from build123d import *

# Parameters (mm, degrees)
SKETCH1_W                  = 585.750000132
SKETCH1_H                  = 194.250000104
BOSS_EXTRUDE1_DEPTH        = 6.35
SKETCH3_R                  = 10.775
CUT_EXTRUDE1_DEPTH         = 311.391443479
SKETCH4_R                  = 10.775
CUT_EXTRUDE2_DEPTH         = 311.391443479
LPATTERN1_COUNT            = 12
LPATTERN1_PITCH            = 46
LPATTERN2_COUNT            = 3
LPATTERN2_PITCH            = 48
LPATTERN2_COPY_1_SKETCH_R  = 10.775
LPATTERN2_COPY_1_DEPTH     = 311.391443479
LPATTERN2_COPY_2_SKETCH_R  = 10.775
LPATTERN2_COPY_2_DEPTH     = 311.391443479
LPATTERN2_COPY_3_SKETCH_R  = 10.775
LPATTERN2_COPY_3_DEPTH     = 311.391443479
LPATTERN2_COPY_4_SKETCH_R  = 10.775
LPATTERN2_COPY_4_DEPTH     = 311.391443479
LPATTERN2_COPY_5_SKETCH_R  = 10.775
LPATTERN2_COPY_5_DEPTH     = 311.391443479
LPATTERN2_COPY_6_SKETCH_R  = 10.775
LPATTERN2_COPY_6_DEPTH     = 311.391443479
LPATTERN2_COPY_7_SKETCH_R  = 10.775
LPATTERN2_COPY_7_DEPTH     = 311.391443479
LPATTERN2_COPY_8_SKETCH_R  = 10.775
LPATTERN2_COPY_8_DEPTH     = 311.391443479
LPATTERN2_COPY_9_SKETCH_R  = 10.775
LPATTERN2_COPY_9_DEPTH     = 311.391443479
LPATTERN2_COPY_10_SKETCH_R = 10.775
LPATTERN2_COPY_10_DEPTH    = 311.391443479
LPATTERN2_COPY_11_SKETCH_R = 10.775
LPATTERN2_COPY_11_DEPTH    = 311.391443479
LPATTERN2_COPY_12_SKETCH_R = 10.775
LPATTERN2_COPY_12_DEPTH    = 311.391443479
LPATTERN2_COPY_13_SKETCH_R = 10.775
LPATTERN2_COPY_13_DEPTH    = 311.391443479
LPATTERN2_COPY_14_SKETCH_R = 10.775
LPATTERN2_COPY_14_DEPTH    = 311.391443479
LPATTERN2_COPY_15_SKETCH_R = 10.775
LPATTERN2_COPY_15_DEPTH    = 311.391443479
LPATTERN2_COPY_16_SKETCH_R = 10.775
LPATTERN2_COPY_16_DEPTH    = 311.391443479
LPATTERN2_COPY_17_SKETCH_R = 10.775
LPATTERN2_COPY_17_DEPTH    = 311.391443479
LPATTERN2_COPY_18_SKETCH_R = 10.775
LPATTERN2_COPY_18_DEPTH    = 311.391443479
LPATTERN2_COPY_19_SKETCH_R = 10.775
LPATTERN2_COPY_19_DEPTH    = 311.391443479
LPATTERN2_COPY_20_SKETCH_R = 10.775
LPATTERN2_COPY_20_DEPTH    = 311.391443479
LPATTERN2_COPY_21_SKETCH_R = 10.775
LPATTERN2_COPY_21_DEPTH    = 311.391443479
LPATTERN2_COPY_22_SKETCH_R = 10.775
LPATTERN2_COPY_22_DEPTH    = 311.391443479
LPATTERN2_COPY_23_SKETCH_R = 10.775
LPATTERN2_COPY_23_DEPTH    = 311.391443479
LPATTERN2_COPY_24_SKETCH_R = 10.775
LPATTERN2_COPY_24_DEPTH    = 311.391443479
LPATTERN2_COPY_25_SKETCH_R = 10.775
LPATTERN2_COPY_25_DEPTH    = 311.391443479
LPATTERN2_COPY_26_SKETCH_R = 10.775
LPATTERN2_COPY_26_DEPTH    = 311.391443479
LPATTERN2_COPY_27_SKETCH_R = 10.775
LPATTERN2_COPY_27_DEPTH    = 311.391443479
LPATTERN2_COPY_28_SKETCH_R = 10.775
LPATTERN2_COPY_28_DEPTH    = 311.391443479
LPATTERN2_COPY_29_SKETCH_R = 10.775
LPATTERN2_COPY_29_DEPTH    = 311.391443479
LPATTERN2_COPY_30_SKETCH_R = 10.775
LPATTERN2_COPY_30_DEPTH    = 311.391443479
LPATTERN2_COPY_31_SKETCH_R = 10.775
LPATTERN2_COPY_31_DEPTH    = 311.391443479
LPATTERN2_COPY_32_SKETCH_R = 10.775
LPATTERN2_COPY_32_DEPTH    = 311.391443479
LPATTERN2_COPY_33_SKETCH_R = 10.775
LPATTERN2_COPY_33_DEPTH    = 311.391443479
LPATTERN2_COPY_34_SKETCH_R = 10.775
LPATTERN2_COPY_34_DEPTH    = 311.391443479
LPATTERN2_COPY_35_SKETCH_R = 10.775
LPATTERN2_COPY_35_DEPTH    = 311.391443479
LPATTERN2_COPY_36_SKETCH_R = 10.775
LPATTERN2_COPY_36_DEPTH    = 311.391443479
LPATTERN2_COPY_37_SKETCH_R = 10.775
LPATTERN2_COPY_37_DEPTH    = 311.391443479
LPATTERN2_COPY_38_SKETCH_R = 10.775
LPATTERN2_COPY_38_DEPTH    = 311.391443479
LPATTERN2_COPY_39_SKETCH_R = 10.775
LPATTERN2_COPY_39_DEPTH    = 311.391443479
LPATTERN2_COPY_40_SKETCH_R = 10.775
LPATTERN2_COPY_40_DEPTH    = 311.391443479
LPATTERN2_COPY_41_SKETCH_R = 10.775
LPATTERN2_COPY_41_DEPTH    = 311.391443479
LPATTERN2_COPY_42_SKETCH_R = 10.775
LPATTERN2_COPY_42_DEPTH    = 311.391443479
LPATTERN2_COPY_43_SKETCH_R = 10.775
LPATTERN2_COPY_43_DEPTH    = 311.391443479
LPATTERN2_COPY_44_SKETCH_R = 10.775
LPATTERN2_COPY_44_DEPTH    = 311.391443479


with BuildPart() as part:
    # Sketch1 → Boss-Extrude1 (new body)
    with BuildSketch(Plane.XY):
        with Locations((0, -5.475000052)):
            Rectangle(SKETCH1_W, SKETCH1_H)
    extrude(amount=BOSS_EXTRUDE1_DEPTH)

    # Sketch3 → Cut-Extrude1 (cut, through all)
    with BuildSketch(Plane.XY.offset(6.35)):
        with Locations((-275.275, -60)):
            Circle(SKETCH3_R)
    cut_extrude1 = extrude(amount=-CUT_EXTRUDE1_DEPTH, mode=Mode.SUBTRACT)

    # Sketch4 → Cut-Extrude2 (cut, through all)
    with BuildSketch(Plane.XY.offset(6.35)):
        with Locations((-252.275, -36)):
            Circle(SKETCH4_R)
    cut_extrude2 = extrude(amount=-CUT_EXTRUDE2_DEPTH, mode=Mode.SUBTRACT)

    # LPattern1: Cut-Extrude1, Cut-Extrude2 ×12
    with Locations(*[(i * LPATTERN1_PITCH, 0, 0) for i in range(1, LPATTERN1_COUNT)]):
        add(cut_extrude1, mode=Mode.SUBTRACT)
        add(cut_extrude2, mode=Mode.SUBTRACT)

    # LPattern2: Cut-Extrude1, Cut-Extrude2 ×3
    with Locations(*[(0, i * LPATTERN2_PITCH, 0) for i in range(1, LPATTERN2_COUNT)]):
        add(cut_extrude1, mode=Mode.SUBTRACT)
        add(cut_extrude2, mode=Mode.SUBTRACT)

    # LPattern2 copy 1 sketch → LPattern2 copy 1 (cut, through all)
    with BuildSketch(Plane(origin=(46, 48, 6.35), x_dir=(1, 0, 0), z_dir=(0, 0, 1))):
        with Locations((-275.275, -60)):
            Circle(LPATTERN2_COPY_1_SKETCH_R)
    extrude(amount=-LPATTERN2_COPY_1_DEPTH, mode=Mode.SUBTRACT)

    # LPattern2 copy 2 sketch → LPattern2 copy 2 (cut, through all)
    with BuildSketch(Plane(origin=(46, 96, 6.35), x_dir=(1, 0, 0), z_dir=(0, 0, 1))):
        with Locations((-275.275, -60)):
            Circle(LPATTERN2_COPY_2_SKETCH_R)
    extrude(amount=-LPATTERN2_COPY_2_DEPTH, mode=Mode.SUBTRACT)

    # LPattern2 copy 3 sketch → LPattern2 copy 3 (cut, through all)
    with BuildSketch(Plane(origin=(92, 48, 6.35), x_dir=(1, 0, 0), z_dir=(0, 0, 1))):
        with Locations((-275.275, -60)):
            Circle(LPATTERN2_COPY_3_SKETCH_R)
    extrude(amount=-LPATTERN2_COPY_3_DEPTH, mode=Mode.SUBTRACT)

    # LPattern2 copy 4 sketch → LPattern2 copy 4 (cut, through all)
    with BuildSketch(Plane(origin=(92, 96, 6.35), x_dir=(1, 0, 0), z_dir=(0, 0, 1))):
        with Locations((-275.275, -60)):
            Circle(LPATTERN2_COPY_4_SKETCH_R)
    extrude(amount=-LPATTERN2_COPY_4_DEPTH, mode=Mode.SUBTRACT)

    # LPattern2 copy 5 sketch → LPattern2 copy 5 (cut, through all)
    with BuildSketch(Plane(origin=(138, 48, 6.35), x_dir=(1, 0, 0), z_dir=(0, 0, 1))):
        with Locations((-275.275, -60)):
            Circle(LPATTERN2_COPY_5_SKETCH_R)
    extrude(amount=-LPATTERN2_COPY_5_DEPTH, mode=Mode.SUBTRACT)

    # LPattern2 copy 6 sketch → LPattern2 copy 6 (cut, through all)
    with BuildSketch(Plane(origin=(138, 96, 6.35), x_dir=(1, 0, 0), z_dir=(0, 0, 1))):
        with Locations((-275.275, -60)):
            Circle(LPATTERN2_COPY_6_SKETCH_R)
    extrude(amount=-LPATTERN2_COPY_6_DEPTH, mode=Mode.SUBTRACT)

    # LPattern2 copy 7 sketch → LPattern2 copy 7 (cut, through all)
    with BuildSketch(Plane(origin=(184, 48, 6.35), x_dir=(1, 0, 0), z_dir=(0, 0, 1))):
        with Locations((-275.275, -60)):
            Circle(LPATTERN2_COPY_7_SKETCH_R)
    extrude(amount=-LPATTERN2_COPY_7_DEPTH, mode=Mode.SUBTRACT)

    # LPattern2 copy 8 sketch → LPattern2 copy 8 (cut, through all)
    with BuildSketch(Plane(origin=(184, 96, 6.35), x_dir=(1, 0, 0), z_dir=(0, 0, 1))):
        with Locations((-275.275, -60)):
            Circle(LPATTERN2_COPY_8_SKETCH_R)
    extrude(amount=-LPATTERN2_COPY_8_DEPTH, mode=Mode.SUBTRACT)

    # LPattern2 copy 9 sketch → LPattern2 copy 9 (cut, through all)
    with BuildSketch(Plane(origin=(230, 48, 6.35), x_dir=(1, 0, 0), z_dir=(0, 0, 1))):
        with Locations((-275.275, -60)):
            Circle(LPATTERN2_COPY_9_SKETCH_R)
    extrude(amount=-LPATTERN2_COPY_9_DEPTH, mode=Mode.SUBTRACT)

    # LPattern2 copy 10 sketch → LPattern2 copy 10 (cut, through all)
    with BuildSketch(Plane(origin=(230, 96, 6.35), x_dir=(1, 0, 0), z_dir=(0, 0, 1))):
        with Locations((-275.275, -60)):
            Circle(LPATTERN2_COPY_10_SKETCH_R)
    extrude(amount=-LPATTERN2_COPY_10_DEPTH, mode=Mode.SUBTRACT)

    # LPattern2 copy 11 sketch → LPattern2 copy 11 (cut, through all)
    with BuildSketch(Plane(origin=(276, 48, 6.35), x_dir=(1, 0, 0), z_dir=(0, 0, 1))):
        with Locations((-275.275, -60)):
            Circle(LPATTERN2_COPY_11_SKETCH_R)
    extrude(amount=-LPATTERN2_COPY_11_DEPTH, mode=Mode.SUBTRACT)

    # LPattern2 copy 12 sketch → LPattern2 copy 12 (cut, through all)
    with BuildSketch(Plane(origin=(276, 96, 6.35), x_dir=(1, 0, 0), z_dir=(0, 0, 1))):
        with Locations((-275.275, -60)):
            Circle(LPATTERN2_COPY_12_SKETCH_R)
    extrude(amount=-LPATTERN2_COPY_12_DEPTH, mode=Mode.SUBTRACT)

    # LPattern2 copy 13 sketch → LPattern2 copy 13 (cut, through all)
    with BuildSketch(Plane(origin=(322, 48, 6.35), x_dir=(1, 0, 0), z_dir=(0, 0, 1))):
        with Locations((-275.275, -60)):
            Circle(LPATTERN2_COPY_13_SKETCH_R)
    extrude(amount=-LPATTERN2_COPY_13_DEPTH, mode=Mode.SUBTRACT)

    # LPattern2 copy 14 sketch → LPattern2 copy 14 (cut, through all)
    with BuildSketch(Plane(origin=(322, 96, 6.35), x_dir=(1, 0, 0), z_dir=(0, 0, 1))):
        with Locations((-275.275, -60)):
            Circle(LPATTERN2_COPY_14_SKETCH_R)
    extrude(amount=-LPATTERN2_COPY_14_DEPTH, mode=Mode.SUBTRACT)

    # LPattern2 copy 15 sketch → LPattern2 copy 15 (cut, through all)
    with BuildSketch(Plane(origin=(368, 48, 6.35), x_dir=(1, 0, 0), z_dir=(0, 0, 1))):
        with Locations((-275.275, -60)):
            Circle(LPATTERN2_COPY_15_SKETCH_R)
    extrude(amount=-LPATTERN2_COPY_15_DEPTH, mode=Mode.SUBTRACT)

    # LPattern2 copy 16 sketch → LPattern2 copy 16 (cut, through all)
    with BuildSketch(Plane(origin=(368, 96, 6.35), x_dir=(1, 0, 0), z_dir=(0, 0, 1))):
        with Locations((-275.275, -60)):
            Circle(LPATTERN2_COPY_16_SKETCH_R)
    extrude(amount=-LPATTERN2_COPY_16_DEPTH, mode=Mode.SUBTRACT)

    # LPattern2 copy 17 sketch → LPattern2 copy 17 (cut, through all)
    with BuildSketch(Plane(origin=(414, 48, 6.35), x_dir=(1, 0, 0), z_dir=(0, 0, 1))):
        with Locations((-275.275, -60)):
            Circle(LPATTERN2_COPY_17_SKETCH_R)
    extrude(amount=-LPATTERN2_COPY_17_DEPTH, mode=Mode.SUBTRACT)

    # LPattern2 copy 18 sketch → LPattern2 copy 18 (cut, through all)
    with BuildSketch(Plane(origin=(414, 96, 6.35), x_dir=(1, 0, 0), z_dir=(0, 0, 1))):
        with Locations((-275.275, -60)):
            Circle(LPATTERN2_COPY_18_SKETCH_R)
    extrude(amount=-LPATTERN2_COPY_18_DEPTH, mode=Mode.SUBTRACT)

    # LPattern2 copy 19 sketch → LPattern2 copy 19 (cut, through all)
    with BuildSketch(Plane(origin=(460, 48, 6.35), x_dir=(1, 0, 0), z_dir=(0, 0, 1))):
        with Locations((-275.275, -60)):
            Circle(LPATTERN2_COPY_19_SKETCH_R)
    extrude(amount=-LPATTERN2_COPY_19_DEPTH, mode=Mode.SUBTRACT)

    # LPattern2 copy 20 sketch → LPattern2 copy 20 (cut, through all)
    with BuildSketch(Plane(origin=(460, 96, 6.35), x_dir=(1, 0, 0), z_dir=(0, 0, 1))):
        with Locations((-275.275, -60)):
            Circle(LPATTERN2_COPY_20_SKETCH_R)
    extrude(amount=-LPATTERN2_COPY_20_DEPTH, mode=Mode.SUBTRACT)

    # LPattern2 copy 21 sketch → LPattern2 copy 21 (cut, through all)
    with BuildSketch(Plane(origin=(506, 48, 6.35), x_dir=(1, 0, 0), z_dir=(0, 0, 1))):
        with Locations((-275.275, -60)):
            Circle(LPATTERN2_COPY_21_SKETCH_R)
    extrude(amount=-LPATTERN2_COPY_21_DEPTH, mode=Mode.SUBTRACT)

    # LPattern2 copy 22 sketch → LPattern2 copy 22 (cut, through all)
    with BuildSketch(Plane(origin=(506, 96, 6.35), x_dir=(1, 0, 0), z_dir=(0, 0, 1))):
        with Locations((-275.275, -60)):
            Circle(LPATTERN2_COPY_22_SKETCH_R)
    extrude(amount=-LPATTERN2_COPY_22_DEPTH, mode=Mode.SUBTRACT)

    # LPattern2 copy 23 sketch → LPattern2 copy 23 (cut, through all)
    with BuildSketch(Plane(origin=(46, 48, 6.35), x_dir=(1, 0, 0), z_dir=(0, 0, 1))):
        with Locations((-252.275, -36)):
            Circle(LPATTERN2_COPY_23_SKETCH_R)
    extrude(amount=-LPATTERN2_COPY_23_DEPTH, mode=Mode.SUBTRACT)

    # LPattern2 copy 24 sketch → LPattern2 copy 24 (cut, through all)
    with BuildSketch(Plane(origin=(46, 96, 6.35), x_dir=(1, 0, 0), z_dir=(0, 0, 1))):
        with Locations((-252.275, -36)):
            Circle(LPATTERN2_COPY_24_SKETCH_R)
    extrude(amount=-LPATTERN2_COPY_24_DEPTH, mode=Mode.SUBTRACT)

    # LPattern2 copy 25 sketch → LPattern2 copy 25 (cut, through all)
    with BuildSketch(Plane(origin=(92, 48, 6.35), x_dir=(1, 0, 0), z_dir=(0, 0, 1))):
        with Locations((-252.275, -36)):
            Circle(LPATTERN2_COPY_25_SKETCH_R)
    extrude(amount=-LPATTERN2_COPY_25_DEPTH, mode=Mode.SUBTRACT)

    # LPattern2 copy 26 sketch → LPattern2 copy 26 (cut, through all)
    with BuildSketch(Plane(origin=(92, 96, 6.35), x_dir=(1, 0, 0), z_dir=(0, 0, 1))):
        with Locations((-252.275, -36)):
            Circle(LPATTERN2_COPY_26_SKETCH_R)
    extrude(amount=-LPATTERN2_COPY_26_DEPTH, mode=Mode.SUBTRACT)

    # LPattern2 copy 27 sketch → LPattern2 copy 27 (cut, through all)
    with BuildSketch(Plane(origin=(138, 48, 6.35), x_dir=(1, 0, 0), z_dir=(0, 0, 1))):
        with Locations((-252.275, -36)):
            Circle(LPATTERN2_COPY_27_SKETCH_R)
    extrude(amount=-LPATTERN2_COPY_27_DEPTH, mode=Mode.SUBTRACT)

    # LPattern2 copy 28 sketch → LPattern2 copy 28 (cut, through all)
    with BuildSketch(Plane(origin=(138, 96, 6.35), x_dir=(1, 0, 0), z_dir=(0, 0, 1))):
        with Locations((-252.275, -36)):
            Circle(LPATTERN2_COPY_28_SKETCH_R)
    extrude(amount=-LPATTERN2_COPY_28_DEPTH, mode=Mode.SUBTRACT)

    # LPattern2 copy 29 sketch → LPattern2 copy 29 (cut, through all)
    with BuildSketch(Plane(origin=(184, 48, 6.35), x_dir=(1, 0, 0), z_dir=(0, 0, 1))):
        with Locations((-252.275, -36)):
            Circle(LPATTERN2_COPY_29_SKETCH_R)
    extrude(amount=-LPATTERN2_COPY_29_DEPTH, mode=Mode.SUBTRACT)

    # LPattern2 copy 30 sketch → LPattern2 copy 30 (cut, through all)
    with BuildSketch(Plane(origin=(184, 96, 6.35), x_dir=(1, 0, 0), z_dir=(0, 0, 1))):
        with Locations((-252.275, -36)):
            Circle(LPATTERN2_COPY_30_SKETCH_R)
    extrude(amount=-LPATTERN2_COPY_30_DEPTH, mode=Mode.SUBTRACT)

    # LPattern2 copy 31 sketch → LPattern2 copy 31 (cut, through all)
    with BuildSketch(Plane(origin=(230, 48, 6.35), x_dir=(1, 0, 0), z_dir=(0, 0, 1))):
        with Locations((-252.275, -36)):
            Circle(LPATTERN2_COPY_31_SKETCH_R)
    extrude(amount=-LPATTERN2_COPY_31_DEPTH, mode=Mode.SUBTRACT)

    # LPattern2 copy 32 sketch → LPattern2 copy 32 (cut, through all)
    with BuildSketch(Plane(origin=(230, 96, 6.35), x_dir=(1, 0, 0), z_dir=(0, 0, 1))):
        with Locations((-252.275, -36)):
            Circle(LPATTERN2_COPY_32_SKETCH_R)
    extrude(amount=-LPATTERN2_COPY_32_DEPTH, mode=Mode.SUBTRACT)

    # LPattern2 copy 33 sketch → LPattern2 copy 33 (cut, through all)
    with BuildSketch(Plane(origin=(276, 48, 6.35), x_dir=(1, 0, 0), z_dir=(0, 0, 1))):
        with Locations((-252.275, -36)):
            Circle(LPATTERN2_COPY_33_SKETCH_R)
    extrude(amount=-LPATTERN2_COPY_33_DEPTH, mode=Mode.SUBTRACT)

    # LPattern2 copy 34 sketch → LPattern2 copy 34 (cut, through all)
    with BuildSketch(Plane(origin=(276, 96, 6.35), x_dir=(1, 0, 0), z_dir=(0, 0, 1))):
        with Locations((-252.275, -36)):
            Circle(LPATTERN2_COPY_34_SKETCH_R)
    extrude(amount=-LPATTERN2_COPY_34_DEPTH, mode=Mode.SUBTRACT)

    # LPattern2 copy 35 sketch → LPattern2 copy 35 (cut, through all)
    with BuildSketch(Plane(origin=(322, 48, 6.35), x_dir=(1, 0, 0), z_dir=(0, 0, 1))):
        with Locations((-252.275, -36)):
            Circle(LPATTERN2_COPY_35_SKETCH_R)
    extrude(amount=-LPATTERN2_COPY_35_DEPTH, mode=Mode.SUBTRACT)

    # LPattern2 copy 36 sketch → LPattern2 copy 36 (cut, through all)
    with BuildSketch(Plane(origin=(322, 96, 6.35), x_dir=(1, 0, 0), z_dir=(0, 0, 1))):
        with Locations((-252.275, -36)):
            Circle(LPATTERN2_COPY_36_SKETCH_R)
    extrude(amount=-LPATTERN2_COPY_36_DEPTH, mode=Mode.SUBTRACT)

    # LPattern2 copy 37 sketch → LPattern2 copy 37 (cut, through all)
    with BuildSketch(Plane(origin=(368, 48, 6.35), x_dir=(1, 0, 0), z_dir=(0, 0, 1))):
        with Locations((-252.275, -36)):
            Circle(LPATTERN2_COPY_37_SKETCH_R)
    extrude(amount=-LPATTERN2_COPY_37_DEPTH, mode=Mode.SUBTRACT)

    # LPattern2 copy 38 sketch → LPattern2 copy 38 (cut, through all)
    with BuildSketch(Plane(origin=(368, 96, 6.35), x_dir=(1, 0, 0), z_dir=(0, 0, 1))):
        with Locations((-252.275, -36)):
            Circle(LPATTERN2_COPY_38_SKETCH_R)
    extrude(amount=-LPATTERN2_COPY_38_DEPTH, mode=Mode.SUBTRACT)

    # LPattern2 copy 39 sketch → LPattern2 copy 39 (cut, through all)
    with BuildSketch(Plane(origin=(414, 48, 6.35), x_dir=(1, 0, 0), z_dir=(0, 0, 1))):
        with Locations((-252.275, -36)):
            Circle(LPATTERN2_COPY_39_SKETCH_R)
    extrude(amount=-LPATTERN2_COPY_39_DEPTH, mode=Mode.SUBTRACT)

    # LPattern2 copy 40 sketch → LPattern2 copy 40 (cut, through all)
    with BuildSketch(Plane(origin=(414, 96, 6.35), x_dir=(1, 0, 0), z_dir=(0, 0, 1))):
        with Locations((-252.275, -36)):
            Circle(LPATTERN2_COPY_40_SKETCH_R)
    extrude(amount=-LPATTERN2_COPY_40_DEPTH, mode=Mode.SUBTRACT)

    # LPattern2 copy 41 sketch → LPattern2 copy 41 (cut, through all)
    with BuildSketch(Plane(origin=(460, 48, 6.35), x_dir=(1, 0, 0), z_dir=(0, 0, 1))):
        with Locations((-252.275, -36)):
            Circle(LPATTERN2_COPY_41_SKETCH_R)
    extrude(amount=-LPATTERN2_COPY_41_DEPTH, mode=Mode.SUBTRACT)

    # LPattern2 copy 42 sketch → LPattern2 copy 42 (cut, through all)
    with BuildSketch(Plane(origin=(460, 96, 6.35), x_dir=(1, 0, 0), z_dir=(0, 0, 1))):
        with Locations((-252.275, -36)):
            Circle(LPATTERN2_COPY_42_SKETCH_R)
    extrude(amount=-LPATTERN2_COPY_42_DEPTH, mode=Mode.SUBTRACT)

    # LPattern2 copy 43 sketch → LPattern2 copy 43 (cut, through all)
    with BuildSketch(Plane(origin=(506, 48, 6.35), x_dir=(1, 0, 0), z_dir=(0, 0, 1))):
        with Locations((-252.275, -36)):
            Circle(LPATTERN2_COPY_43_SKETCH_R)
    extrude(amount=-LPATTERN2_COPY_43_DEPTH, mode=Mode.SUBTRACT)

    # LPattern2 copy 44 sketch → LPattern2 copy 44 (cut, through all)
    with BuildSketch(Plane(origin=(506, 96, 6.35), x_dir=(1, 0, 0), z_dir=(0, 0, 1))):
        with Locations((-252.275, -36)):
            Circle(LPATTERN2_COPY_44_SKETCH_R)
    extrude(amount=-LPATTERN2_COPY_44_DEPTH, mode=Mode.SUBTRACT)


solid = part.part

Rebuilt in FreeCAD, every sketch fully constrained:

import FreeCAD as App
import Part
import Sketcher

V = App.Vector
Q = App.Units.Quantity


def add_polygon(sketch, points):
    """Adds a closed chain of lines whose ends are joined by coincident constraints."""
    first, n = sketch.GeometryCount, len(points)
    for a, b in zip(points, points[1:] + points[:1]):
        sketch.addGeometry(Part.LineSegment(App.Vector(*a, 0), App.Vector(*b, 0)), False)
    for i in range(n):
        sketch.addConstraint(Sketcher.Constraint("Coincident", first + i, 2, first + (i + 1) % n, 1))

doc = App.newDocument("Part")
body = doc.addObject("PartDesign::Body", "Body")

# Sketch on XY plane
sketch1 = body.newObject("Sketcher::SketchObject", "Sketch")
sketch1.AttachmentSupport = (doc.getObject("XY_Plane"), [""])
sketch1.MapMode = "FlatFace"
add_polygon(sketch1, [(-293, 92), (-293, -103), (293, -103), (293, 92)])  # lines 0-3
sketch1.addConstraint([
    Sketcher.Constraint("Vertical", 0),
    Sketcher.Constraint("Horizontal", 1),
    Sketcher.Constraint("Vertical", 2),
    Sketcher.Constraint("Horizontal", 3),
    Sketcher.Constraint("DistanceX", 1, 1, 1, 2, Q("585.75 mm")),
    Sketcher.Constraint("DistanceY", 0, 2, 0, 1, Q("194.25 mm")),
    Sketcher.Constraint("DistanceX", 0, 2, -1, 1, Q("292.875 mm")),
    Sketcher.Constraint("DistanceY", 0, 2, -1, 1, Q("102.6 mm")),
])
pad1 = body.newObject("PartDesign::Pad", "Pad")
pad1.Profile = sketch1
pad1.Length = Q("0.25 in")

# Sketch on XY plane
sketch2 = body.newObject("Sketcher::SketchObject", "Sketch001")
sketch2.AttachmentSupport = (doc.getObject("XY_Plane"), [""])
sketch2.MapMode = "FlatFace"
sketch2.AttachmentOffset = App.Placement(V(0, 0, 0.25 * 25.4), App.Rotation())
sketch2.addGeometry(Part.Circle(V(-275, -60, 0), V(0, 0, 1), 11), False)
sketch2.addConstraint([
    Sketcher.Constraint("Diameter", 0, Q("21.55 mm")),
    Sketcher.Constraint("DistanceX", 0, 3, -1, 1, Q("275.275 mm")),
    Sketcher.Constraint("DistanceY", 0, 3, -1, 1, Q("60 mm")),
])
pocket1 = body.newObject("PartDesign::Pocket", "Pocket")
pocket1.Profile = sketch2
pocket1.Type = "ThroughAll"

# Sketch on XY plane
sketch3 = body.newObject("Sketcher::SketchObject", "Sketch002")
sketch3.AttachmentSupport = (doc.getObject("XY_Plane"), [""])
sketch3.MapMode = "FlatFace"
sketch3.AttachmentOffset = App.Placement(V(0, 0, 0.25 * 25.4), App.Rotation())
sketch3.addGeometry(Part.Circle(V(-252, -36, 0), V(0, 0, 1), 11), False)
sketch3.addConstraint([
    Sketcher.Constraint("Diameter", 0, Q("21.55 mm")),
    Sketcher.Constraint("DistanceX", 0, 3, -1, 1, Q("252.275 mm")),
    Sketcher.Constraint("DistanceY", 0, 3, -1, 1, Q("36 mm")),
])
pocket2 = body.newObject("PartDesign::Pocket", "Pocket001")
pocket2.Profile = sketch3
pocket2.Type = "ThroughAll"
doc.recompute()

linearpattern = body.newObject("PartDesign::LinearPattern", "LinearPattern")
linearpattern.Originals = [pocket1, pocket2]
linearpattern.Direction = (doc.getObject("X_Axis"), [""])
linearpattern.Mode = "offset"
linearpattern.Offset = 46
linearpattern.Occurrences = 12
body.Tip = linearpattern
doc.recompute()

linearpattern2 = body.newObject("PartDesign::LinearPattern", "LinearPattern001")
linearpattern2.Originals = [pocket1, pocket2]
linearpattern2.Direction = (doc.getObject("Y_Axis"), [""])
linearpattern2.Mode = "offset"
linearpattern2.Offset = 48
linearpattern2.Occurrences = 3
body.Tip = linearpattern2

# Sketch on XY plane
sketch4 = body.newObject("Sketcher::SketchObject", "Sketch003")
sketch4.AttachmentSupport = (doc.getObject("XY_Plane"), [""])
sketch4.MapMode = "FlatFace"
sketch4.AttachmentOffset = App.Placement(V(0, 0, 0.25 * 25.4), App.Rotation())
sketch4.addGeometry(Part.Circle(V(-229, -12, 0), V(0, 0, 1), 11), False)
sketch4.addConstraint([
    Sketcher.Constraint("Diameter", 0, Q("21.55 mm")),
    Sketcher.Constraint("DistanceX", 0, 3, -1, 1, Q("229.275 mm")),
    Sketcher.Constraint("DistanceY", 0, 3, -1, 1, Q("12 mm")),
])
pocket3 = body.newObject("PartDesign::Pocket", "Pocket002")
pocket3.Profile = sketch4
pocket3.Type = "ThroughAll"

# Sketch on XY plane
sketch5 = body.newObject("Sketcher::SketchObject", "Sketch004")
sketch5.AttachmentSupport = (doc.getObject("XY_Plane"), [""])
sketch5.MapMode = "FlatFace"
sketch5.AttachmentOffset = App.Placement(V(0, 0, 0.25 * 25.4), App.Rotation())
sketch5.addGeometry(Part.Circle(V(-229, 36, 0), V(0, 0, 1), 11), False)
sketch5.addConstraint([
    Sketcher.Constraint("Diameter", 0, Q("21.55 mm")),
    Sketcher.Constraint("DistanceX", 0, 3, -1, 1, Q("229.275 mm")),
    Sketcher.Constraint("DistanceY", -1, 1, 0, 3, Q("36 mm")),
])
pocket4 = body.newObject("PartDesign::Pocket", "Pocket003")
pocket4.Profile = sketch5
pocket4.Type = "ThroughAll"

# Sketch on XY plane
sketch6 = body.newObject("Sketcher::SketchObject", "Sketch005")
sketch6.AttachmentSupport = (doc.getObject("XY_Plane"), [""])
sketch6.MapMode = "FlatFace"
sketch6.AttachmentOffset = App.Placement(V(0, 0, 0.25 * 25.4), App.Rotation())
sketch6.addGeometry(Part.Circle(V(-183, -12, 0), V(0, 0, 1), 11), False)
sketch6.addConstraint([
    Sketcher.Constraint("Diameter", 0, Q("21.55 mm")),
    Sketcher.Constraint("DistanceX", 0, 3, -1, 1, Q("183.275 mm")),
    Sketcher.Constraint("DistanceY", 0, 3, -1, 1, Q("12 mm")),
])
pocket5 = body.newObject("PartDesign::Pocket", "Pocket004")
pocket5.Profile = sketch6
pocket5.Type = "ThroughAll"

# Sketch on XY plane
sketch7 = body.newObject("Sketcher::SketchObject", "Sketch006")
sketch7.AttachmentSupport = (doc.getObject("XY_Plane"), [""])
sketch7.MapMode = "FlatFace"
sketch7.AttachmentOffset = App.Placement(V(0, 0, 0.25 * 25.4), App.Rotation())
sketch7.addGeometry(Part.Circle(V(-183, 36, 0), V(0, 0, 1), 11), False)
sketch7.addConstraint([
    Sketcher.Constraint("Diameter", 0, Q("21.55 mm")),
    Sketcher.Constraint("DistanceX", 0, 3, -1, 1, Q("183.275 mm")),
    Sketcher.Constraint("DistanceY", -1, 1, 0, 3, Q("36 mm")),
])
pocket6 = body.newObject("PartDesign::Pocket", "Pocket005")
pocket6.Profile = sketch7
pocket6.Type = "ThroughAll"

# Sketch on XY plane
sketch8 = body.newObject("Sketcher::SketchObject", "Sketch007")
sketch8.AttachmentSupport = (doc.getObject("XY_Plane"), [""])
sketch8.MapMode = "FlatFace"
sketch8.AttachmentOffset = App.Placement(V(0, 0, 0.25 * 25.4), App.Rotation())
sketch8.addGeometry(Part.Circle(V(-137, -12, 0), V(0, 0, 1), 11), False)
sketch8.addConstraint([
    Sketcher.Constraint("Diameter", 0, Q("21.55 mm")),
    Sketcher.Constraint("DistanceX", 0, 3, -1, 1, Q("137.275 mm")),
    Sketcher.Constraint("DistanceY", 0, 3, -1, 1, Q("12 mm")),
])
pocket7 = body.newObject("PartDesign::Pocket", "Pocket006")
pocket7.Profile = sketch8
pocket7.Type = "ThroughAll"

# Sketch on XY plane
sketch9 = body.newObject("Sketcher::SketchObject", "Sketch008")
sketch9.AttachmentSupport = (doc.getObject("XY_Plane"), [""])
sketch9.MapMode = "FlatFace"
sketch9.AttachmentOffset = App.Placement(V(0, 0, 0.25 * 25.4), App.Rotation())
sketch9.addGeometry(Part.Circle(V(-137, 36, 0), V(0, 0, 1), 11), False)
sketch9.addConstraint([
    Sketcher.Constraint("Diameter", 0, Q("21.55 mm")),
    Sketcher.Constraint("DistanceX", 0, 3, -1, 1, Q("137.275 mm")),
    Sketcher.Constraint("DistanceY", -1, 1, 0, 3, Q("36 mm")),
])
pocket8 = body.newObject("PartDesign::Pocket", "Pocket007")
pocket8.Profile = sketch9
pocket8.Type = "ThroughAll"

# Sketch on XY plane
sketch10 = body.newObject("Sketcher::SketchObject", "Sketch009")
sketch10.AttachmentSupport = (doc.getObject("XY_Plane"), [""])
sketch10.MapMode = "FlatFace"
sketch10.AttachmentOffset = App.Placement(V(0, 0, 0.25 * 25.4), App.Rotation())
sketch10.addGeometry(Part.Circle(V(-91, -12, 0), V(0, 0, 1), 11), False)
sketch10.addConstraint([
    Sketcher.Constraint("Diameter", 0, Q("21.55 mm")),
    Sketcher.Constraint("DistanceX", 0, 3, -1, 1, Q("91.275 mm")),
    Sketcher.Constraint("DistanceY", 0, 3, -1, 1, Q("12 mm")),
])
pocket9 = body.newObject("PartDesign::Pocket", "Pocket008")
pocket9.Profile = sketch10
pocket9.Type = "ThroughAll"

# Sketch on XY plane
sketch11 = body.newObject("Sketcher::SketchObject", "Sketch010")
sketch11.AttachmentSupport = (doc.getObject("XY_Plane"), [""])
sketch11.MapMode = "FlatFace"
sketch11.AttachmentOffset = App.Placement(V(0, 0, 0.25 * 25.4), App.Rotation())
sketch11.addGeometry(Part.Circle(V(-91, 36, 0), V(0, 0, 1), 11), False)
sketch11.addConstraint([
    Sketcher.Constraint("Diameter", 0, Q("21.55 mm")),
    Sketcher.Constraint("DistanceX", 0, 3, -1, 1, Q("91.275 mm")),
    Sketcher.Constraint("DistanceY", -1, 1, 0, 3, Q("36 mm")),
])
pocket10 = body.newObject("PartDesign::Pocket", "Pocket009")
pocket10.Profile = sketch11
pocket10.Type = "ThroughAll"

# Sketch on XY plane
sketch12 = body.newObject("Sketcher::SketchObject", "Sketch011")
sketch12.AttachmentSupport = (doc.getObject("XY_Plane"), [""])
sketch12.MapMode = "FlatFace"
sketch12.AttachmentOffset = App.Placement(V(0, 0, 0.25 * 25.4), App.Rotation())
sketch12.addGeometry(Part.Circle(V(-45, -12, 0), V(0, 0, 1), 11), False)
sketch12.addConstraint([
    Sketcher.Constraint("Diameter", 0, Q("21.55 mm")),
    Sketcher.Constraint("DistanceX", 0, 3, -1, 1, Q("45.275 mm")),
    Sketcher.Constraint("DistanceY", 0, 3, -1, 1, Q("12 mm")),
])
pocket11 = body.newObject("PartDesign::Pocket", "Pocket010")
pocket11.Profile = sketch12
pocket11.Type = "ThroughAll"

# Sketch on XY plane
sketch13 = body.newObject("Sketcher::SketchObject", "Sketch012")
sketch13.AttachmentSupport = (doc.getObject("XY_Plane"), [""])
sketch13.MapMode = "FlatFace"
sketch13.AttachmentOffset = App.Placement(V(0, 0, 0.25 * 25.4), App.Rotation())
sketch13.addGeometry(Part.Circle(V(-45, 36, 0), V(0, 0, 1), 11), False)
sketch13.addConstraint([
    Sketcher.Constraint("Diameter", 0, Q("21.55 mm")),
    Sketcher.Constraint("DistanceX", 0, 3, -1, 1, Q("45.275 mm")),
    Sketcher.Constraint("DistanceY", -1, 1, 0, 3, Q("36 mm")),
])
pocket12 = body.newObject("PartDesign::Pocket", "Pocket011")
pocket12.Profile = sketch13
pocket12.Type = "ThroughAll"

# Sketch on XY plane
sketch14 = body.newObject("Sketcher::SketchObject", "Sketch013")
sketch14.AttachmentSupport = (doc.getObject("XY_Plane"), [""])
sketch14.MapMode = "FlatFace"
sketch14.AttachmentOffset = App.Placement(V(0, 0, 0.25 * 25.4), App.Rotation())
sketch14.addGeometry(Part.Circle(V(1, -12, 0), V(0, 0, 1), 11), False)
sketch14.addConstraint([
    Sketcher.Constraint("Diameter", 0, Q("21.55 mm")),
    Sketcher.Constraint("DistanceX", -1, 1, 0, 3, Q("0.725 mm")),
    Sketcher.Constraint("DistanceY", 0, 3, -1, 1, Q("12 mm")),
])
pocket13 = body.newObject("PartDesign::Pocket", "Pocket012")
pocket13.Profile = sketch14
pocket13.Type = "ThroughAll"

# Sketch on XY plane
sketch15 = body.newObject("Sketcher::SketchObject", "Sketch014")
sketch15.AttachmentSupport = (doc.getObject("XY_Plane"), [""])
sketch15.MapMode = "FlatFace"
sketch15.AttachmentOffset = App.Placement(V(0, 0, 0.25 * 25.4), App.Rotation())
sketch15.addGeometry(Part.Circle(V(1, 36, 0), V(0, 0, 1), 11), False)
sketch15.addConstraint([
    Sketcher.Constraint("Diameter", 0, Q("21.55 mm")),
    Sketcher.Constraint("DistanceX", -1, 1, 0, 3, Q("0.725 mm")),
    Sketcher.Constraint("DistanceY", -1, 1, 0, 3, Q("36 mm")),
])
pocket14 = body.newObject("PartDesign::Pocket", "Pocket013")
pocket14.Profile = sketch15
pocket14.Type = "ThroughAll"

# Sketch on XY plane
sketch16 = body.newObject("Sketcher::SketchObject", "Sketch015")
sketch16.AttachmentSupport = (doc.getObject("XY_Plane"), [""])
sketch16.MapMode = "FlatFace"
sketch16.AttachmentOffset = App.Placement(V(0, 0, 0.25 * 25.4), App.Rotation())
sketch16.addGeometry(Part.Circle(V(47, -12, 0), V(0, 0, 1), 11), False)
sketch16.addConstraint([
    Sketcher.Constraint("Diameter", 0, Q("21.55 mm")),
    Sketcher.Constraint("DistanceX", -1, 1, 0, 3, Q("46.725 mm")),
    Sketcher.Constraint("DistanceY", 0, 3, -1, 1, Q("12 mm")),
])
pocket15 = body.newObject("PartDesign::Pocket", "Pocket014")
pocket15.Profile = sketch16
pocket15.Type = "ThroughAll"

# Sketch on XY plane
sketch17 = body.newObject("Sketcher::SketchObject", "Sketch016")
sketch17.AttachmentSupport = (doc.getObject("XY_Plane"), [""])
sketch17.MapMode = "FlatFace"
sketch17.AttachmentOffset = App.Placement(V(0, 0, 0.25 * 25.4), App.Rotation())
sketch17.addGeometry(Part.Circle(V(47, 36, 0), V(0, 0, 1), 11), False)
sketch17.addConstraint([
    Sketcher.Constraint("Diameter", 0, Q("21.55 mm")),
    Sketcher.Constraint("DistanceX", -1, 1, 0, 3, Q("46.725 mm")),
    Sketcher.Constraint("DistanceY", -1, 1, 0, 3, Q("36 mm")),
])
pocket16 = body.newObject("PartDesign::Pocket", "Pocket015")
pocket16.Profile = sketch17
pocket16.Type = "ThroughAll"

# Sketch on XY plane
sketch18 = body.newObject("Sketcher::SketchObject", "Sketch017")
sketch18.AttachmentSupport = (doc.getObject("XY_Plane"), [""])
sketch18.MapMode = "FlatFace"
sketch18.AttachmentOffset = App.Placement(V(0, 0, 0.25 * 25.4), App.Rotation())
sketch18.addGeometry(Part.Circle(V(93, -12, 0), V(0, 0, 1), 11), False)
sketch18.addConstraint([
    Sketcher.Constraint("Diameter", 0, Q("21.55 mm")),
    Sketcher.Constraint("DistanceX", -1, 1, 0, 3, Q("92.725 mm")),
    Sketcher.Constraint("DistanceY", 0, 3, -1, 1, Q("12 mm")),
])
pocket17 = body.newObject("PartDesign::Pocket", "Pocket016")
pocket17.Profile = sketch18
pocket17.Type = "ThroughAll"

# Sketch on XY plane
sketch19 = body.newObject("Sketcher::SketchObject", "Sketch018")
sketch19.AttachmentSupport = (doc.getObject("XY_Plane"), [""])
sketch19.MapMode = "FlatFace"
sketch19.AttachmentOffset = App.Placement(V(0, 0, 0.25 * 25.4), App.Rotation())
sketch19.addGeometry(Part.Circle(V(93, 36, 0), V(0, 0, 1), 11), False)
sketch19.addConstraint([
    Sketcher.Constraint("Diameter", 0, Q("21.55 mm")),
    Sketcher.Constraint("DistanceX", -1, 1, 0, 3, Q("92.725 mm")),
    Sketcher.Constraint("DistanceY", -1, 1, 0, 3, Q("36 mm")),
])
pocket18 = body.newObject("PartDesign::Pocket", "Pocket017")
pocket18.Profile = sketch19
pocket18.Type = "ThroughAll"

# Sketch on XY plane
sketch20 = body.newObject("Sketcher::SketchObject", "Sketch019")
sketch20.AttachmentSupport = (doc.getObject("XY_Plane"), [""])
sketch20.MapMode = "FlatFace"
sketch20.AttachmentOffset = App.Placement(V(0, 0, 0.25 * 25.4), App.Rotation())
sketch20.addGeometry(Part.Circle(V(139, -12, 0), V(0, 0, 1), 11), False)
sketch20.addConstraint([
    Sketcher.Constraint("Diameter", 0, Q("21.55 mm")),
    Sketcher.Constraint("DistanceX", -1, 1, 0, 3, Q("138.725 mm")),
    Sketcher.Constraint("DistanceY", 0, 3, -1, 1, Q("12 mm")),
])
pocket19 = body.newObject("PartDesign::Pocket", "Pocket018")
pocket19.Profile = sketch20
pocket19.Type = "ThroughAll"

# Sketch on XY plane
sketch21 = body.newObject("Sketcher::SketchObject", "Sketch020")
sketch21.AttachmentSupport = (doc.getObject("XY_Plane"), [""])
sketch21.MapMode = "FlatFace"
sketch21.AttachmentOffset = App.Placement(V(0, 0, 0.25 * 25.4), App.Rotation())
sketch21.addGeometry(Part.Circle(V(139, 36, 0), V(0, 0, 1), 11), False)
sketch21.addConstraint([
    Sketcher.Constraint("Diameter", 0, Q("21.55 mm")),
    Sketcher.Constraint("DistanceX", -1, 1, 0, 3, Q("138.725 mm")),
    Sketcher.Constraint("DistanceY", -1, 1, 0, 3, Q("36 mm")),
])
pocket20 = body.newObject("PartDesign::Pocket", "Pocket019")
pocket20.Profile = sketch21
pocket20.Type = "ThroughAll"

# Sketch on XY plane
sketch22 = body.newObject("Sketcher::SketchObject", "Sketch021")
sketch22.AttachmentSupport = (doc.getObject("XY_Plane"), [""])
sketch22.MapMode = "FlatFace"
sketch22.AttachmentOffset = App.Placement(V(0, 0, 0.25 * 25.4), App.Rotation())
sketch22.addGeometry(Part.Circle(V(185, -12, 0), V(0, 0, 1), 11), False)
sketch22.addConstraint([
    Sketcher.Constraint("Diameter", 0, Q("21.55 mm")),
    Sketcher.Constraint("DistanceX", -1, 1, 0, 3, Q("184.725 mm")),
    Sketcher.Constraint("DistanceY", 0, 3, -1, 1, Q("12 mm")),
])
pocket21 = body.newObject("PartDesign::Pocket", "Pocket020")
pocket21.Profile = sketch22
pocket21.Type = "ThroughAll"

# Sketch on XY plane
sketch23 = body.newObject("Sketcher::SketchObject", "Sketch022")
sketch23.AttachmentSupport = (doc.getObject("XY_Plane"), [""])
sketch23.MapMode = "FlatFace"
sketch23.AttachmentOffset = App.Placement(V(0, 0, 0.25 * 25.4), App.Rotation())
sketch23.addGeometry(Part.Circle(V(185, 36, 0), V(0, 0, 1), 11), False)
sketch23.addConstraint([
    Sketcher.Constraint("Diameter", 0, Q("21.55 mm")),
    Sketcher.Constraint("DistanceX", -1, 1, 0, 3, Q("184.725 mm")),
    Sketcher.Constraint("DistanceY", -1, 1, 0, 3, Q("36 mm")),
])
pocket22 = body.newObject("PartDesign::Pocket", "Pocket021")
pocket22.Profile = sketch23
pocket22.Type = "ThroughAll"

# Sketch on XY plane
sketch24 = body.newObject("Sketcher::SketchObject", "Sketch023")
sketch24.AttachmentSupport = (doc.getObject("XY_Plane"), [""])
sketch24.MapMode = "FlatFace"
sketch24.AttachmentOffset = App.Placement(V(0, 0, 0.25 * 25.4), App.Rotation())
sketch24.addGeometry(Part.Circle(V(231, -12, 0), V(0, 0, 1), 11), False)
sketch24.addConstraint([
    Sketcher.Constraint("Diameter", 0, Q("21.55 mm")),
    Sketcher.Constraint("DistanceX", -1, 1, 0, 3, Q("230.725 mm")),
    Sketcher.Constraint("DistanceY", 0, 3, -1, 1, Q("12 mm")),
])
pocket23 = body.newObject("PartDesign::Pocket", "Pocket022")
pocket23.Profile = sketch24
pocket23.Type = "ThroughAll"

# Sketch on XY plane
sketch25 = body.newObject("Sketcher::SketchObject", "Sketch024")
sketch25.AttachmentSupport = (doc.getObject("XY_Plane"), [""])
sketch25.MapMode = "FlatFace"
sketch25.AttachmentOffset = App.Placement(V(0, 0, 0.25 * 25.4), App.Rotation())
sketch25.addGeometry(Part.Circle(V(231, 36, 0), V(0, 0, 1), 11), False)
sketch25.addConstraint([
    Sketcher.Constraint("Diameter", 0, Q("21.55 mm")),
    Sketcher.Constraint("DistanceX", -1, 1, 0, 3, Q("230.725 mm")),
    Sketcher.Constraint("DistanceY", -1, 1, 0, 3, Q("36 mm")),
])
pocket24 = body.newObject("PartDesign::Pocket", "Pocket023")
pocket24.Profile = sketch25
pocket24.Type = "ThroughAll"

# Sketch on XY plane
sketch26 = body.newObject("Sketcher::SketchObject", "Sketch025")
sketch26.AttachmentSupport = (doc.getObject("XY_Plane"), [""])
sketch26.MapMode = "FlatFace"
sketch26.AttachmentOffset = App.Placement(V(0, 0, 0.25 * 25.4), App.Rotation())
sketch26.addGeometry(Part.Circle(V(-206, 12, 0), V(0, 0, 1), 11), False)
sketch26.addConstraint([
    Sketcher.Constraint("Diameter", 0, Q("21.55 mm")),
    Sketcher.Constraint("DistanceX", 0, 3, -1, 1, Q("206.275 mm")),
    Sketcher.Constraint("DistanceY", -1, 1, 0, 3, Q("12 mm")),
])
pocket25 = body.newObject("PartDesign::Pocket", "Pocket024")
pocket25.Profile = sketch26
pocket25.Type = "ThroughAll"

# Sketch on XY plane
sketch27 = body.newObject("Sketcher::SketchObject", "Sketch026")
sketch27.AttachmentSupport = (doc.getObject("XY_Plane"), [""])
sketch27.MapMode = "FlatFace"
sketch27.AttachmentOffset = App.Placement(V(0, 0, 0.25 * 25.4), App.Rotation())
sketch27.addGeometry(Part.Circle(V(-206, 60, 0), V(0, 0, 1), 11), False)
sketch27.addConstraint([
    Sketcher.Constraint("Diameter", 0, Q("21.55 mm")),
    Sketcher.Constraint("DistanceX", 0, 3, -1, 1, Q("206.275 mm")),
    Sketcher.Constraint("DistanceY", -1, 1, 0, 3, Q("60 mm")),
])
pocket26 = body.newObject("PartDesign::Pocket", "Pocket025")
pocket26.Profile = sketch27
pocket26.Type = "ThroughAll"

# Sketch on XY plane
sketch28 = body.newObject("Sketcher::SketchObject", "Sketch027")
sketch28.AttachmentSupport = (doc.getObject("XY_Plane"), [""])
sketch28.MapMode = "FlatFace"
sketch28.AttachmentOffset = App.Placement(V(0, 0, 0.25 * 25.4), App.Rotation())
sketch28.addGeometry(Part.Circle(V(-160, 12, 0), V(0, 0, 1), 11), False)
sketch28.addConstraint([
    Sketcher.Constraint("Diameter", 0, Q("21.55 mm")),
    Sketcher.Constraint("DistanceX", 0, 3, -1, 1, Q("160.275 mm")),
    Sketcher.Constraint("DistanceY", -1, 1, 0, 3, Q("12 mm")),
])
pocket27 = body.newObject("PartDesign::Pocket", "Pocket026")
pocket27.Profile = sketch28
pocket27.Type = "ThroughAll"

# Sketch on XY plane
sketch29 = body.newObject("Sketcher::SketchObject", "Sketch028")
sketch29.AttachmentSupport = (doc.getObject("XY_Plane"), [""])
sketch29.MapMode = "FlatFace"
sketch29.AttachmentOffset = App.Placement(V(0, 0, 0.25 * 25.4), App.Rotation())
sketch29.addGeometry(Part.Circle(V(-160, 60, 0), V(0, 0, 1), 11), False)
sketch29.addConstraint([
    Sketcher.Constraint("Diameter", 0, Q("21.55 mm")),
    Sketcher.Constraint("DistanceX", 0, 3, -1, 1, Q("160.275 mm")),
    Sketcher.Constraint("DistanceY", -1, 1, 0, 3, Q("60 mm")),
])
pocket28 = body.newObject("PartDesign::Pocket", "Pocket027")
pocket28.Profile = sketch29
pocket28.Type = "ThroughAll"

# Sketch on XY plane
sketch30 = body.newObject("Sketcher::SketchObject", "Sketch029")
sketch30.AttachmentSupport = (doc.getObject("XY_Plane"), [""])
sketch30.MapMode = "FlatFace"
sketch30.AttachmentOffset = App.Placement(V(0, 0, 0.25 * 25.4), App.Rotation())
sketch30.addGeometry(Part.Circle(V(-114, 12, 0), V(0, 0, 1), 11), False)
sketch30.addConstraint([
    Sketcher.Constraint("Diameter", 0, Q("21.55 mm")),
    Sketcher.Constraint("DistanceX", 0, 3, -1, 1, Q("114.275 mm")),
    Sketcher.Constraint("DistanceY", -1, 1, 0, 3, Q("12 mm")),
])
pocket29 = body.newObject("PartDesign::Pocket", "Pocket028")
pocket29.Profile = sketch30
pocket29.Type = "ThroughAll"

# Sketch on XY plane
sketch31 = body.newObject("Sketcher::SketchObject", "Sketch030")
sketch31.AttachmentSupport = (doc.getObject("XY_Plane"), [""])
sketch31.MapMode = "FlatFace"
sketch31.AttachmentOffset = App.Placement(V(0, 0, 0.25 * 25.4), App.Rotation())
sketch31.addGeometry(Part.Circle(V(-114, 60, 0), V(0, 0, 1), 11), False)
sketch31.addConstraint([
    Sketcher.Constraint("Diameter", 0, Q("21.55 mm")),
    Sketcher.Constraint("DistanceX", 0, 3, -1, 1, Q("114.275 mm")),
    Sketcher.Constraint("DistanceY", -1, 1, 0, 3, Q("60 mm")),
])
pocket30 = body.newObject("PartDesign::Pocket", "Pocket029")
pocket30.Profile = sketch31
pocket30.Type = "ThroughAll"

# Sketch on XY plane
sketch32 = body.newObject("Sketcher::SketchObject", "Sketch031")
sketch32.AttachmentSupport = (doc.getObject("XY_Plane"), [""])
sketch32.MapMode = "FlatFace"
sketch32.AttachmentOffset = App.Placement(V(0, 0, 0.25 * 25.4), App.Rotation())
sketch32.addGeometry(Part.Circle(V(-68, 12, 0), V(0, 0, 1), 11), False)
sketch32.addConstraint([
    Sketcher.Constraint("Diameter", 0, Q("21.55 mm")),
    Sketcher.Constraint("DistanceX", 0, 3, -1, 1, Q("68.275 mm")),
    Sketcher.Constraint("DistanceY", -1, 1, 0, 3, Q("12 mm")),
])
pocket31 = body.newObject("PartDesign::Pocket", "Pocket030")
pocket31.Profile = sketch32
pocket31.Type = "ThroughAll"

# Sketch on XY plane
sketch33 = body.newObject("Sketcher::SketchObject", "Sketch032")
sketch33.AttachmentSupport = (doc.getObject("XY_Plane"), [""])
sketch33.MapMode = "FlatFace"
sketch33.AttachmentOffset = App.Placement(V(0, 0, 0.25 * 25.4), App.Rotation())
sketch33.addGeometry(Part.Circle(V(-68, 60, 0), V(0, 0, 1), 11), False)
sketch33.addConstraint([
    Sketcher.Constraint("Diameter", 0, Q("21.55 mm")),
    Sketcher.Constraint("DistanceX", 0, 3, -1, 1, Q("68.275 mm")),
    Sketcher.Constraint("DistanceY", -1, 1, 0, 3, Q("60 mm")),
])
pocket32 = body.newObject("PartDesign::Pocket", "Pocket031")
pocket32.Profile = sketch33
pocket32.Type = "ThroughAll"

# Sketch on XY plane
sketch34 = body.newObject("Sketcher::SketchObject", "Sketch033")
sketch34.AttachmentSupport = (doc.getObject("XY_Plane"), [""])
sketch34.MapMode = "FlatFace"
sketch34.AttachmentOffset = App.Placement(V(0, 0, 0.25 * 25.4), App.Rotation())
sketch34.addGeometry(Part.Circle(V(-22, 12, 0), V(0, 0, 1), 11), False)
sketch34.addConstraint([
    Sketcher.Constraint("Diameter", 0, Q("21.55 mm")),
    Sketcher.Constraint("DistanceX", 0, 3, -1, 1, Q("22.275 mm")),
    Sketcher.Constraint("DistanceY", -1, 1, 0, 3, Q("12 mm")),
])
pocket33 = body.newObject("PartDesign::Pocket", "Pocket032")
pocket33.Profile = sketch34
pocket33.Type = "ThroughAll"

# Sketch on XY plane
sketch35 = body.newObject("Sketcher::SketchObject", "Sketch034")
sketch35.AttachmentSupport = (doc.getObject("XY_Plane"), [""])
sketch35.MapMode = "FlatFace"
sketch35.AttachmentOffset = App.Placement(V(0, 0, 0.25 * 25.4), App.Rotation())
sketch35.addGeometry(Part.Circle(V(-22, 60, 0), V(0, 0, 1), 11), False)
sketch35.addConstraint([
    Sketcher.Constraint("Diameter", 0, Q("21.55 mm")),
    Sketcher.Constraint("DistanceX", 0, 3, -1, 1, Q("22.275 mm")),
    Sketcher.Constraint("DistanceY", -1, 1, 0, 3, Q("60 mm")),
])
pocket34 = body.newObject("PartDesign::Pocket", "Pocket033")
pocket34.Profile = sketch35
pocket34.Type = "ThroughAll"

# Sketch on XY plane
sketch36 = body.newObject("Sketcher::SketchObject", "Sketch035")
sketch36.AttachmentSupport = (doc.getObject("XY_Plane"), [""])
sketch36.MapMode = "FlatFace"
sketch36.AttachmentOffset = App.Placement(V(0, 0, 0.25 * 25.4), App.Rotation())
sketch36.addGeometry(Part.Circle(V(24, 12, 0), V(0, 0, 1), 11), False)
sketch36.addConstraint([
    Sketcher.Constraint("Diameter", 0, Q("21.55 mm")),
    Sketcher.Constraint("DistanceX", -1, 1, 0, 3, Q("23.725 mm")),
    Sketcher.Constraint("DistanceY", -1, 1, 0, 3, Q("12 mm")),
])
pocket35 = body.newObject("PartDesign::Pocket", "Pocket034")
pocket35.Profile = sketch36
pocket35.Type = "ThroughAll"

# Sketch on XY plane
sketch37 = body.newObject("Sketcher::SketchObject", "Sketch036")
sketch37.AttachmentSupport = (doc.getObject("XY_Plane"), [""])
sketch37.MapMode = "FlatFace"
sketch37.AttachmentOffset = App.Placement(V(0, 0, 0.25 * 25.4), App.Rotation())
sketch37.addGeometry(Part.Circle(V(24, 60, 0), V(0, 0, 1), 11), False)
sketch37.addConstraint([
    Sketcher.Constraint("Diameter", 0, Q("21.55 mm")),
    Sketcher.Constraint("DistanceX", -1, 1, 0, 3, Q("23.725 mm")),
    Sketcher.Constraint("DistanceY", -1, 1, 0, 3, Q("60 mm")),
])
pocket36 = body.newObject("PartDesign::Pocket", "Pocket035")
pocket36.Profile = sketch37
pocket36.Type = "ThroughAll"

# Sketch on XY plane
sketch38 = body.newObject("Sketcher::SketchObject", "Sketch037")
sketch38.AttachmentSupport = (doc.getObject("XY_Plane"), [""])
sketch38.MapMode = "FlatFace"
sketch38.AttachmentOffset = App.Placement(V(0, 0, 0.25 * 25.4), App.Rotation())
sketch38.addGeometry(Part.Circle(V(70, 12, 0), V(0, 0, 1), 11), False)
sketch38.addConstraint([
    Sketcher.Constraint("Diameter", 0, Q("21.55 mm")),
    Sketcher.Constraint("DistanceX", -1, 1, 0, 3, Q("69.725 mm")),
    Sketcher.Constraint("DistanceY", -1, 1, 0, 3, Q("12 mm")),
])
pocket37 = body.newObject("PartDesign::Pocket", "Pocket036")
pocket37.Profile = sketch38
pocket37.Type = "ThroughAll"

# Sketch on XY plane
sketch39 = body.newObject("Sketcher::SketchObject", "Sketch038")
sketch39.AttachmentSupport = (doc.getObject("XY_Plane"), [""])
sketch39.MapMode = "FlatFace"
sketch39.AttachmentOffset = App.Placement(V(0, 0, 0.25 * 25.4), App.Rotation())
sketch39.addGeometry(Part.Circle(V(70, 60, 0), V(0, 0, 1), 11), False)
sketch39.addConstraint([
    Sketcher.Constraint("Diameter", 0, Q("21.55 mm")),
    Sketcher.Constraint("DistanceX", -1, 1, 0, 3, Q("69.725 mm")),
    Sketcher.Constraint("DistanceY", -1, 1, 0, 3, Q("60 mm")),
])
pocket38 = body.newObject("PartDesign::Pocket", "Pocket037")
pocket38.Profile = sketch39
pocket38.Type = "ThroughAll"

# Sketch on XY plane
sketch40 = body.newObject("Sketcher::SketchObject", "Sketch039")
sketch40.AttachmentSupport = (doc.getObject("XY_Plane"), [""])
sketch40.MapMode = "FlatFace"
sketch40.AttachmentOffset = App.Placement(V(0, 0, 0.25 * 25.4), App.Rotation())
sketch40.addGeometry(Part.Circle(V(116, 12, 0), V(0, 0, 1), 11), False)
sketch40.addConstraint([
    Sketcher.Constraint("Diameter", 0, Q("21.55 mm")),
    Sketcher.Constraint("DistanceX", -1, 1, 0, 3, Q("115.725 mm")),
    Sketcher.Constraint("DistanceY", -1, 1, 0, 3, Q("12 mm")),
])
pocket39 = body.newObject("PartDesign::Pocket", "Pocket038")
pocket39.Profile = sketch40
pocket39.Type = "ThroughAll"

# Sketch on XY plane
sketch41 = body.newObject("Sketcher::SketchObject", "Sketch040")
sketch41.AttachmentSupport = (doc.getObject("XY_Plane"), [""])
sketch41.MapMode = "FlatFace"
sketch41.AttachmentOffset = App.Placement(V(0, 0, 0.25 * 25.4), App.Rotation())
sketch41.addGeometry(Part.Circle(V(116, 60, 0), V(0, 0, 1), 11), False)
sketch41.addConstraint([
    Sketcher.Constraint("Diameter", 0, Q("21.55 mm")),
    Sketcher.Constraint("DistanceX", -1, 1, 0, 3, Q("115.725 mm")),
    Sketcher.Constraint("DistanceY", -1, 1, 0, 3, Q("60 mm")),
])
pocket40 = body.newObject("PartDesign::Pocket", "Pocket039")
pocket40.Profile = sketch41
pocket40.Type = "ThroughAll"

# Sketch on XY plane
sketch42 = body.newObject("Sketcher::SketchObject", "Sketch041")
sketch42.AttachmentSupport = (doc.getObject("XY_Plane"), [""])
sketch42.MapMode = "FlatFace"
sketch42.AttachmentOffset = App.Placement(V(0, 0, 0.25 * 25.4), App.Rotation())
sketch42.addGeometry(Part.Circle(V(162, 12, 0), V(0, 0, 1), 11), False)
sketch42.addConstraint([
    Sketcher.Constraint("Diameter", 0, Q("21.55 mm")),
    Sketcher.Constraint("DistanceX", -1, 1, 0, 3, Q("161.725 mm")),
    Sketcher.Constraint("DistanceY", -1, 1, 0, 3, Q("12 mm")),
])
pocket41 = body.newObject("PartDesign::Pocket", "Pocket040")
pocket41.Profile = sketch42
pocket41.Type = "ThroughAll"

# Sketch on XY plane
sketch43 = body.newObject("Sketcher::SketchObject", "Sketch042")
sketch43.AttachmentSupport = (doc.getObject("XY_Plane"), [""])
sketch43.MapMode = "FlatFace"
sketch43.AttachmentOffset = App.Placement(V(0, 0, 0.25 * 25.4), App.Rotation())
sketch43.addGeometry(Part.Circle(V(162, 60, 0), V(0, 0, 1), 11), False)
sketch43.addConstraint([
    Sketcher.Constraint("Diameter", 0, Q("21.55 mm")),
    Sketcher.Constraint("DistanceX", -1, 1, 0, 3, Q("161.725 mm")),
    Sketcher.Constraint("DistanceY", -1, 1, 0, 3, Q("60 mm")),
])
pocket42 = body.newObject("PartDesign::Pocket", "Pocket041")
pocket42.Profile = sketch43
pocket42.Type = "ThroughAll"

# Sketch on XY plane
sketch44 = body.newObject("Sketcher::SketchObject", "Sketch043")
sketch44.AttachmentSupport = (doc.getObject("XY_Plane"), [""])
sketch44.MapMode = "FlatFace"
sketch44.AttachmentOffset = App.Placement(V(0, 0, 0.25 * 25.4), App.Rotation())
sketch44.addGeometry(Part.Circle(V(208, 12, 0), V(0, 0, 1), 11), False)
sketch44.addConstraint([
    Sketcher.Constraint("Diameter", 0, Q("21.55 mm")),
    Sketcher.Constraint("DistanceX", -1, 1, 0, 3, Q("207.725 mm")),
    Sketcher.Constraint("DistanceY", -1, 1, 0, 3, Q("12 mm")),
])
pocket43 = body.newObject("PartDesign::Pocket", "Pocket042")
pocket43.Profile = sketch44
pocket43.Type = "ThroughAll"

# Sketch on XY plane
sketch45 = body.newObject("Sketcher::SketchObject", "Sketch044")
sketch45.AttachmentSupport = (doc.getObject("XY_Plane"), [""])
sketch45.MapMode = "FlatFace"
sketch45.AttachmentOffset = App.Placement(V(0, 0, 0.25 * 25.4), App.Rotation())
sketch45.addGeometry(Part.Circle(V(208, 60, 0), V(0, 0, 1), 11), False)
sketch45.addConstraint([
    Sketcher.Constraint("Diameter", 0, Q("21.55 mm")),
    Sketcher.Constraint("DistanceX", -1, 1, 0, 3, Q("207.725 mm")),
    Sketcher.Constraint("DistanceY", -1, 1, 0, 3, Q("60 mm")),
])
pocket44 = body.newObject("PartDesign::Pocket", "Pocket043")
pocket44.Profile = sketch45
pocket44.Type = "ThroughAll"

# Sketch on XY plane
sketch46 = body.newObject("Sketcher::SketchObject", "Sketch045")
sketch46.AttachmentSupport = (doc.getObject("XY_Plane"), [""])
sketch46.MapMode = "FlatFace"
sketch46.AttachmentOffset = App.Placement(V(0, 0, 0.25 * 25.4), App.Rotation())
sketch46.addGeometry(Part.Circle(V(254, 12, 0), V(0, 0, 1), 11), False)
sketch46.addConstraint([
    Sketcher.Constraint("Diameter", 0, Q("21.55 mm")),
    Sketcher.Constraint("DistanceX", -1, 1, 0, 3, Q("253.725 mm")),
    Sketcher.Constraint("DistanceY", -1, 1, 0, 3, Q("12 mm")),
])
pocket45 = body.newObject("PartDesign::Pocket", "Pocket044")
pocket45.Profile = sketch46
pocket45.Type = "ThroughAll"

# Sketch on XY plane
sketch47 = body.newObject("Sketcher::SketchObject", "Sketch046")
sketch47.AttachmentSupport = (doc.getObject("XY_Plane"), [""])
sketch47.MapMode = "FlatFace"
sketch47.AttachmentOffset = App.Placement(V(0, 0, 0.25 * 25.4), App.Rotation())
sketch47.addGeometry(Part.Circle(V(254, 60, 0), V(0, 0, 1), 11), False)
sketch47.addConstraint([
    Sketcher.Constraint("Diameter", 0, Q("21.55 mm")),
    Sketcher.Constraint("DistanceX", -1, 1, 0, 3, Q("253.725 mm")),
    Sketcher.Constraint("DistanceY", -1, 1, 0, 3, Q("60 mm")),
])
pocket46 = body.newObject("PartDesign::Pocket", "Pocket045")
pocket46.Profile = sketch47
pocket46.Type = "ThroughAll"

doc.recompute()
